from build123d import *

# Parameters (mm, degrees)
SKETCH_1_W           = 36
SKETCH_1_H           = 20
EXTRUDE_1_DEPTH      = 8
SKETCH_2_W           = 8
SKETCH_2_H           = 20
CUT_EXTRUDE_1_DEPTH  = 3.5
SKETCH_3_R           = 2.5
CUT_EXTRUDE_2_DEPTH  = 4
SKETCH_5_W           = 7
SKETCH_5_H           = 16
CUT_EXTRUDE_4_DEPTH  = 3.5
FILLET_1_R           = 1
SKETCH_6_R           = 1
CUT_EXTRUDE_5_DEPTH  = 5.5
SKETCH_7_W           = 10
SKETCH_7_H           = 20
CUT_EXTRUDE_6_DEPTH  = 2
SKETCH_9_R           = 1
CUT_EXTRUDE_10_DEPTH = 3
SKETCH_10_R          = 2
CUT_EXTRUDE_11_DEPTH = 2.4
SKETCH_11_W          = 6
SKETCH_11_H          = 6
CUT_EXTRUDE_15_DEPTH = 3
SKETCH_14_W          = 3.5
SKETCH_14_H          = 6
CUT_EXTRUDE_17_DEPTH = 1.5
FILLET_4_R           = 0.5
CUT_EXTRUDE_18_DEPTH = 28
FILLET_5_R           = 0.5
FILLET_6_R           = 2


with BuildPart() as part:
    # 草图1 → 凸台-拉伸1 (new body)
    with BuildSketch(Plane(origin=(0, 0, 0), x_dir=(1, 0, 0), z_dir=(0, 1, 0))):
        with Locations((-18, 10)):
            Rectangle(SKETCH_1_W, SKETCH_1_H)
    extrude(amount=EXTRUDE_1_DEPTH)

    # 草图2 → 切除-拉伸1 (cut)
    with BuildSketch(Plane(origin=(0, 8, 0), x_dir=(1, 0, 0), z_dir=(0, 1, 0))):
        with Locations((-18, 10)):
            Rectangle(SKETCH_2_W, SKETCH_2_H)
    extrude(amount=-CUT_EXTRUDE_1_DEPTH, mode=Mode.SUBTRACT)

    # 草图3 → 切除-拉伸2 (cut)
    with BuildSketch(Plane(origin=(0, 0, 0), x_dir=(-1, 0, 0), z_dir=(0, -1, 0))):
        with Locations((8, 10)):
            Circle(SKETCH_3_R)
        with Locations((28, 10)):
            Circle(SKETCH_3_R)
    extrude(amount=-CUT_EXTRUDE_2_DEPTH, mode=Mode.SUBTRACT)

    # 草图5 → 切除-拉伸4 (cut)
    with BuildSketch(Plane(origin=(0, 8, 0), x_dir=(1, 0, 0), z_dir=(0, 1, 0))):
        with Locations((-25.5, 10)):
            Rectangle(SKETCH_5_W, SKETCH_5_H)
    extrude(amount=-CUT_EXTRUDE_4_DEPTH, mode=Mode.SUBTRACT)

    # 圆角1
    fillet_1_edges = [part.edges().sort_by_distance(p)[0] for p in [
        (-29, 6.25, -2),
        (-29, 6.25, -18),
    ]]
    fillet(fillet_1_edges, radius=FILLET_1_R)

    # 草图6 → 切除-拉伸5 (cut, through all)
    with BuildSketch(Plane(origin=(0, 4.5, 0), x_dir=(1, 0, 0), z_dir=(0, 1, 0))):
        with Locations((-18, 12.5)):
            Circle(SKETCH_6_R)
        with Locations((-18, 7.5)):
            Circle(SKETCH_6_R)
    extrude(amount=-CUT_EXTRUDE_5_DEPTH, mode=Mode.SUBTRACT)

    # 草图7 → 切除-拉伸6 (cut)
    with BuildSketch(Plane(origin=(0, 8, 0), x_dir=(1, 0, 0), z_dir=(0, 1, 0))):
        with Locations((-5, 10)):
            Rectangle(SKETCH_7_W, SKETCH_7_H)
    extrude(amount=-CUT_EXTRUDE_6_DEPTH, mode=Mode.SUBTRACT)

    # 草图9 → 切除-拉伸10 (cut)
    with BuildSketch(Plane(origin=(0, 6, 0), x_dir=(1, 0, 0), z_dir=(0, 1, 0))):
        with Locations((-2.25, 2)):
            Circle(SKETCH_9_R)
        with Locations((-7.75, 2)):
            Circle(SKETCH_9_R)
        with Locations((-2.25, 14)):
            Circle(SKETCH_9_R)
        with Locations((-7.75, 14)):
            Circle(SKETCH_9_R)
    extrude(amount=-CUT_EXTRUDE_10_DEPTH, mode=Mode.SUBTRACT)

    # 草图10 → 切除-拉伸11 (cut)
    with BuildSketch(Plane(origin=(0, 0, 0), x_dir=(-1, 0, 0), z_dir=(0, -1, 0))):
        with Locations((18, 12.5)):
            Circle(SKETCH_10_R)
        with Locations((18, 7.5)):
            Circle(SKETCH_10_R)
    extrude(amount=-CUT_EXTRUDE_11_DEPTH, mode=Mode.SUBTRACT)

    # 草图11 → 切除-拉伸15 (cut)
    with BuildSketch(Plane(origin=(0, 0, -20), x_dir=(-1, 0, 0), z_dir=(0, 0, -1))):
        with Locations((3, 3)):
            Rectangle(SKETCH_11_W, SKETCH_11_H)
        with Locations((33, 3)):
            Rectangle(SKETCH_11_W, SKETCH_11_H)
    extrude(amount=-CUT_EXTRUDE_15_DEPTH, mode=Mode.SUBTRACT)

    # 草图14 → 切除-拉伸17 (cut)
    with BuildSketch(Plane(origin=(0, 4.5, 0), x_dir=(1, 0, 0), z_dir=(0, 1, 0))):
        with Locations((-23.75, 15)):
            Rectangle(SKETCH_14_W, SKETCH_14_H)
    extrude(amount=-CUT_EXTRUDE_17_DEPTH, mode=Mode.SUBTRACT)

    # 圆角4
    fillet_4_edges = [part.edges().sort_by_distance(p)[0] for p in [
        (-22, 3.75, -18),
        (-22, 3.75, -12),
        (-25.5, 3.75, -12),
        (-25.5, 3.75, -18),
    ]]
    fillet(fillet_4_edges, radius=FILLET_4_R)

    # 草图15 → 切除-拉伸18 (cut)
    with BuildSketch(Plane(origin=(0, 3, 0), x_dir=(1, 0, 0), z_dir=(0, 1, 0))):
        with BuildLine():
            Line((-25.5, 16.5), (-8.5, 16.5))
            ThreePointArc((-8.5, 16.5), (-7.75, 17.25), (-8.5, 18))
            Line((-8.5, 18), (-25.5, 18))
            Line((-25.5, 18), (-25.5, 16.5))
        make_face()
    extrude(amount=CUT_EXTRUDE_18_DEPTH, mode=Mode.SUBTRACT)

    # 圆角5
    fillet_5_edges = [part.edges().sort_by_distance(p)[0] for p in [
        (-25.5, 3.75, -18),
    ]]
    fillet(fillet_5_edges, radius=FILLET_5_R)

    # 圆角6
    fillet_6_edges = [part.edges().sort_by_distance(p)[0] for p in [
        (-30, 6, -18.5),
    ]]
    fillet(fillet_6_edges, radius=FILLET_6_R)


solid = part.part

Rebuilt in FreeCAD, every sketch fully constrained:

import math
import FreeCAD as App
import Part
import Sketcher
from FreeCAD import Vector


def edges_at(feature, points):
    """Names of the edges that pass closest to the given points."""
    edges = feature.Shape.Edges
    near = lambda p: min(range(len(edges)), key=lambda i: edges[i].distToShape(Part.Vertex(*p))[0])
    return sorted({f"Edge{near(p) + 1}" for p in points})


def add_polygon(sketch, points):
    """Adds a closed chain of lines whose ends are joined by coincident constraints."""
    first, n = sketch.GeometryCount, len(points)
    for a, b in zip(points, points[1:] + points[:1]):
        sketch.addGeometry(Part.LineSegment(App.Vector(*a, 0), App.Vector(*b, 0)), False)
    for i in range(n):
        sketch.addConstraint(Sketcher.Constraint("Coincident", first + i, 2, first + (i + 1) % n, 1))

doc = App.newDocument("Part")
body = doc.addObject("PartDesign::Body", "Body")

sketch1 = doc.addObject("Sketcher::SketchObject", "Sketch")
body.addObject(sketch1)
sketch1.AttachmentSupport = (doc.XZ_Plane, [""])
sketch1.MapMode = "FlatFace"
add_polygon(sketch1, [(-36, -20), (-36, 0), (0, 0), (0, -20)])
sketch1.addConstraint(Sketcher.Constraint("Vertical", 0))
sketch1.addConstraint(Sketcher.Constraint("Horizontal", 1))
sketch1.addConstraint(Sketcher.Constraint("Vertical", 2))
sketch1.addConstraint(Sketcher.Constraint("Horizontal", 3))
sketch1.addConstraint(Sketcher.Constraint("Coincident", 1, 2, -1, 1))
sketch1.addConstraint(Sketcher.Constraint("DistanceX", 1, 1, 1, 2, 36.0))
sketch1.addConstraint(Sketcher.Constraint("DistanceY", 0, 1, 0, 2, 20.0))
pad1 = doc.addObject("PartDesign::Pad", "Pad")
body.addObject(pad1)
pad1.Profile = sketch1
pad1.Length = 8
pad1.Reversed = True

sketch2 = doc.addObject("Sketcher::SketchObject", "Sketch001")
body.addObject(sketch2)
sketch2.AttachmentSupport = (doc.XZ_Plane, [""])
sketch2.MapMode = "FlatFace"
sketch2.AttachmentOffset = App.Placement(Vector(0, 0, -8), App.Rotation())
add_polygon(sketch2, [(-22, -20), (-22, 0), (-14, 0), (-14, -20)])
sketch2.addConstraint(Sketcher.Constraint("Vertical", 0))
sketch2.addConstraint(Sketcher.Constraint("Horizontal", 1))
sketch2.addConstraint(Sketcher.Constraint("Vertical", 2))
sketch2.addConstraint(Sketcher.Constraint("Horizontal", 3))
sketch2.addConstraint(Sketcher.Constraint("PointOnObject", 0, 2, -1))
sketch2.addConstraint(Sketcher.Constraint("DistanceX", 1, 1, 1, 2, 8.0))
sketch2.addConstraint(Sketcher.Constraint("DistanceY", 0, 1, 0, 2, 20.0))
sketch2.addConstraint(Sketcher.Constraint("DistanceX", 0, 2, -1, 1, 22.0))
pocket1 = doc.addObject("PartDesign::Pocket", "Pocket")
body.addObject(pocket1)
pocket1.Profile = sketch2
pocket1.Length = 3.5
pocket1.Reversed = True

sketch3 = doc.addObject("Sketcher::SketchObject", "Sketch002")
body.addObject(sketch3)
sketch3.AttachmentSupport = (doc.XZ_Plane, [""])
sketch3.MapMode = "FlatFace"
sketch3.addGeometry(Part.Circle(Vector(-8, -10, 0), Vector(0, 0, 1), 2.5), False)
sketch3.addGeometry(Part.Circle(Vector(-28, -10, 0), Vector(0, 0, 1), 2.5), False)
sketch3.addConstraint(Sketcher.Constraint("Equal", 0, 1))
sketch3.addConstraint(Sketcher.Constraint("Horizontal", 0, 3, 1, 3))
sketch3.addConstraint(Sketcher.Constraint("Diameter", 0, 5.0))
sketch3.addConstraint(Sketcher.Constraint("DistanceX", 0, 3, -1, 1, 8.0))
sketch3.addConstraint(Sketcher.Constraint("DistanceY", 0, 3, -1, 1, 10.0))
sketch3.addConstraint(Sketcher.Constraint("DistanceX", 1, 3, -1, 1, 28.0))
pocket2 = doc.addObject("PartDesign::Pocket", "Pocket001")
body.addObject(pocket2)
pocket2.Profile = sketch3
pocket2.Length = 4

sketch4 = doc.addObject("Sketcher::SketchObject", "Sketch003")
body.addObject(sketch4)
sketch4.AttachmentSupport = (doc.XZ_Plane, [""])
sketch4.MapMode = "FlatFace"
sketch4.AttachmentOffset = App.Placement(Vector(0, 0, -8), App.Rotation())
add_polygon(sketch4, [(-29, -18), (-29, -2), (-22, -2), (-22, -18)])
sketch4.addConstraint(Sketcher.Constraint("Vertical", 0))
sketch4.addConstraint(Sketcher.Constraint("Horizontal", 1))
sketch4.addConstraint(Sketcher.Constraint("Vertical", 2))
sketch4.addConstraint(Sketcher.Constraint("Horizontal", 3))
sketch4.addConstraint(Sketcher.Constraint("DistanceX", 1, 1, 1, 2, 7.0))
sketch4.addConstraint(Sketcher.Constraint("DistanceY", 0, 1, 0, 2, 16.0))
sketch4.addConstraint(Sketcher.Constraint("DistanceX", 0, 2, -1, 1, 29.0))
sketch4.addConstraint(Sketcher.Constraint("DistanceY", 0, 2, -1, 1, 2.0))
pocket3 = doc.addObject("PartDesign::Pocket", "Pocket002")
body.addObject(pocket3)
pocket3.Profile = sketch4
pocket3.Length = 3.5
pocket3.Reversed = True
doc.recompute()

fillet = doc.addObject("PartDesign::Fillet", "Fillet")
body.addObject(fillet)
fillet.Base = (pocket3, edges_at(pocket3, [(-29, 6.25, -2), (-29, 6.25, -18)]))
fillet.Radius = 1

sketch5 = doc.addObject("Sketcher::SketchObject", "Sketch004")
body.addObject(sketch5)
sketch5.AttachmentSupport = (doc.XZ_Plane, [""])
sketch5.MapMode = "FlatFace"
sketch5.AttachmentOffset = App.Placement(Vector(0, 0, -4.5), App.Rotation())
sketch5.addGeometry(Part.Circle(Vector(-18, -12.5, 0), Vector(0, 0, 1), 1), False)
sketch5.addGeometry(Part.Circle(Vector(-18, -7.5, 0), Vector(0, 0, 1), 1), False)
sketch5.addConstraint(Sketcher.Constraint("Equal", 0, 1))
sketch5.addConstraint(Sketcher.Constraint("Vertical", 0, 3, 1, 3))
sketch5.addConstraint(Sketcher.Constraint("Diameter", 0, 2.0))
sketch5.addConstraint(Sketcher.Constraint("DistanceX", 0, 3, -1, 1, 18.0))
sketch5.addConstraint(Sketcher.Constraint("DistanceY", 0, 3, 1, 3, 5.0))
sketch5.addConstraint(Sketcher.Constraint("DistanceY", 0, 3, -1, 1, 12.5))
pocket4 = doc.addObject("PartDesign::Pocket", "Pocket003")
body.addObject(pocket4)
pocket4.Profile = sketch5
pocket4.Type = "ThroughAll"
pocket4.Reversed = True

sketch6 = doc.addObject("Sketcher::SketchObject", "Sketch005")
body.addObject(sketch6)
sketch6.AttachmentSupport = (doc.XZ_Plane, [""])
sketch6.MapMode = "FlatFace"
sketch6.AttachmentOffset = App.Placement(Vector(0, 0, -8), App.Rotation())
add_polygon(sketch6, [(-10, -20), (-10, 0), (0, 0), (0, -20)])
sketch6.addConstraint(Sketcher.Constraint("Vertical", 0))
sketch6.addConstraint(Sketcher.Constraint("Horizontal", 1))
sketch6.addConstraint(Sketcher.Constraint("Vertical", 2))
sketch6.addConstraint(Sketcher.Constraint("Horizontal", 3))
sketch6.addConstraint(Sketcher.Constraint("Coincident", 1, 2, -1, 1))
sketch6.addConstraint(Sketcher.Constraint("DistanceX", 1, 1, 1, 2, 10.0))
sketch6.addConstraint(Sketcher.Constraint("DistanceY", 0, 1, 0, 2, 20.0))
pocket5 = doc.addObject("PartDesign::Pocket", "Pocket004")
body.addObject(pocket5)
pocket5.Profile = sketch6
pocket5.Length = 2
pocket5.Reversed = True

sketch7 = doc.addObject("Sketcher::SketchObject", "Sketch006")
body.addObject(sketch7)
sketch7.AttachmentSupport = (doc.XZ_Plane, [""])
sketch7.MapMode = "FlatFace"
sketch7.AttachmentOffset = App.Placement(Vector(0, 0, -6), App.Rotation())
sketch7.addGeometry(Part.Circle(Vector(-2.2, -2, 0), Vector(0, 0, 1), 1), False)
sketch7.addGeometry(Part.Circle(Vector(-7.8, -2, 0), Vector(0, 0, 1), 1), False)
sketch7.addGeometry(Part.Circle(Vector(-2.2, -14, 0), Vector(0, 0, 1), 1), False)
sketch7.addGeometry(Part.Circle(Vector(-7.8, -14, 0), Vector(0, 0, 1), 1), False)
sketch7.addConstraint(Sketcher.Constraint("Equal", 0, 1))
sketch7.addConstraint(Sketcher.Constraint("Equal", 1, 2))
sketch7.addConstraint(Sketcher.Constraint("Equal", 2, 3))
sketch7.addConstraint(Sketcher.Constraint("Horizontal", 0, 3, 1, 3))
sketch7.addConstraint(Sketcher.Constraint("Horizontal", 2, 3, 3, 3))
sketch7.addConstraint(Sketcher.Constraint("Vertical", 0, 3, 2, 3))
sketch7.addConstraint(Sketcher.Constraint("Vertical", 1, 3, 3, 3))
sketch7.addConstraint(Sketcher.Constraint("Diameter", 0, 2.0))
sketch7.addConstraint(Sketcher.Constraint("DistanceY", 0, 3, -1, 1, 2.0))
sketch7.addConstraint(Sketcher.Constraint("DistanceY", 2, 3, -1, 1, 14.0))
sketch7.addConstraint(Sketcher.Constraint("DistanceX", 1, 3, 0, 3, 5.5))
sketch7.addConstraint(Sketcher.Constraint("DistanceX", 0, 3, -1, 1, 2.25))
pocket6 = doc.addObject("PartDesign::Pocket", "Pocket005")
body.addObject(pocket6)
pocket6.Profile = sketch7
pocket6.Length = 3
pocket6.Reversed = True

sketch8 = doc.addObject("Sketcher::SketchObject", "Sketch007")
body.addObject(sketch8)
sketch8.AttachmentSupport = (doc.XZ_Plane, [""])
sketch8.MapMode = "FlatFace"
sketch8.addGeometry(Part.Circle(Vector(-18, -12.5, 0), Vector(0, 0, 1), 2), False)
sketch8.addGeometry(Part.Circle(Vector(-18, -7.5, 0), Vector(0, 0, 1), 2), False)
sketch8.addConstraint(Sketcher.Constraint("Equal", 0, 1))
sketch8.addConstraint(Sketcher.Constraint("Vertical", 0, 3, 1, 3))
sketch8.addConstraint(Sketcher.Constraint("Diameter", 0, 4.0))
sketch8.addConstraint(Sketcher.Constraint("DistanceX", 0, 3, -1, 1, 18.0))
sketch8.addConstraint(Sketcher.Constraint("DistanceY", 0, 3, 1, 3, 5.0))
sketch8.addConstraint(Sketcher.Constraint("DistanceY", 0, 3, -1, 1, 12.5))
pocket7 = doc.addObject("PartDesign::Pocket", "Pocket006")
body.addObject(pocket7)
pocket7.Profile = sketch8
pocket7.Length = 2.4

sketch9 = doc.addObject("Sketcher::SketchObject", "Sketch008")
body.addObject(sketch9)
sketch9.AttachmentSupport = (doc.XY_Plane, [""])
sketch9.MapMode = "FlatFace"
sketch9.AttachmentOffset = App.Placement(Vector(0, 0, -20), App.Rotation())
add_polygon(sketch9, [(0, 6), (0, 0), (-6, 0), (-6, 6)])
add_polygon(sketch9, [(-30, 6), (-30, 0), (-36, 0), (-36, 6)])
sketch9.addConstraint(Sketcher.Constraint("Vertical", 0))
sketch9.addConstraint(Sketcher.Constraint("Horizontal", 1))
sketch9.addConstraint(Sketcher.Constraint("Vertical", 2))
sketch9.addConstraint(Sketcher.Constraint("Horizontal", 3))
sketch9.addConstraint(Sketcher.Constraint("Vertical", 4))
sketch9.addConstraint(Sketcher.Constraint("Horizontal", 5))
sketch9.addConstraint(Sketcher.Constraint("Vertical", 6))
sketch9.addConstraint(Sketcher.Constraint("Horizontal", 7))
sketch9.addConstraint(Sketcher.Constraint("Coincident", 0, 2, -1, 1))
sketch9.addConstraint(Sketcher.Constraint("PointOnObject", 4, 2, -1))
sketch9.addConstraint(Sketcher.Constraint("Horizontal", 3, 2, 6, 2))
sketch9.addConstraint(Sketcher.Constraint("Equal", 3, 5))
sketch9.addConstraint(Sketcher.Constraint("Equal", 7, 0))
sketch9.addConstraint(Sketcher.Constraint("DistanceX", 1, 2, 1, 1, 6.0))
sketch9.addConstraint(Sketcher.Constraint("DistanceX", 4, 2, -1, 1, 30.0))
pocket8 = doc.addObject("PartDesign::Pocket", "Pocket007")
body.addObject(pocket8)
pocket8.Profile = sketch9
pocket8.Length = 3
pocket8.Reversed = True

sketch10 = doc.addObject("Sketcher::SketchObject", "Sketch009")
body.addObject(sketch10)
sketch10.AttachmentSupport = (doc.XZ_Plane, [""])
sketch10.MapMode = "FlatFace"
sketch10.AttachmentOffset = App.Placement(Vector(0, 0, -4.5), App.Rotation())
add_polygon(sketch10, [(-25.5, -18), (-25.5, -12), (-22, -12), (-22, -18)])
sketch10.addConstraint(Sketcher.Constraint("Vertical", 0))
sketch10.addConstraint(Sketcher.Constraint("Horizontal", 1))
sketch10.addConstraint(Sketcher.Constraint("Vertical", 2))
sketch10.addConstraint(Sketcher.Constraint("Horizontal", 3))
sketch10.addConstraint(Sketcher.Constraint("DistanceY", 0, 1, 0, 2, 6.0))
sketch10.addConstraint(Sketcher.Constraint("DistanceX", 1, 1, 1, 2, 3.5))
sketch10.addConstraint(Sketcher.Constraint("DistanceY", 0, 2, -1, 1, 12.0))
sketch10.addConstraint(Sketcher.Constraint("DistanceX", 1, 2, -1, 1, 22.0))
pocket9 = doc.addObject("PartDesign::Pocket", "Pocket008")
body.addObject(pocket9)
pocket9.Profile = sketch10
pocket9.Length = 1.5
pocket9.Reversed = True
doc.recompute()

fillet2 = doc.addObject("PartDesign::Fillet", "Fillet001")
body.addObject(fillet2)
fillet2.Base = (pocket9, edges_at(pocket9, [
    (-22, 3.75, -18),
    (-22, 3.75, -12),
    (-25.5, 3.75, -12),
    (-25.5, 3.75, -18),
]))
fillet2.Radius = 0.5

sketch11 = doc.addObject("Sketcher::SketchObject", "Sketch010")
body.addObject(sketch11)
sketch11.AttachmentSupport = (doc.XZ_Plane, [""])
sketch11.MapMode = "FlatFace"
sketch11.AttachmentOffset = App.Placement(Vector(0, 0, -3), App.Rotation())
sketch11.addGeometry(Part.LineSegment(Vector(-25.5, -16.5, 0), Vector(-8.5, -16.5, 0)), False)
sketch11.addGeometry(Part.ArcOfCircle(Part.Circle(Vector(-8.5, -17.2, 0), Vector(0, 0, 1), 0.8), math.radians(-90), math.radians(90)), False)
sketch11.addGeometry(Part.LineSegment(Vector(-8.5, -18, 0), Vector(-25.5, -18, 0)), False)
sketch11.addGeometry(Part.LineSegment(Vector(-25.5, -18, 0), Vector(-25.5, -16.5, 0)), False)
sketch11.addConstraint(Sketcher.Constraint("Tangent", 0, 2, 1, 2))
sketch11.addConstraint(Sketcher.Constraint("Tangent", 1, 1, 2, 1))
sketch11.addConstraint(Sketcher.Constraint("Coincident", 2, 2, 3, 1))
sketch11.addConstraint(Sketcher.Constraint("Coincident", 3, 2, 0, 1))
sketch11.addConstraint(Sketcher.Constraint("Horizontal", 0))
sketch11.addConstraint(Sketcher.Constraint("Horizontal", 2))
sketch11.addConstraint(Sketcher.Constraint("Vertical", 3))
sketch11.addConstraint(Sketcher.Constraint("DistanceX", 0, 1, 0, 2, 17.0))
sketch11.addConstraint(Sketcher.Constraint("Radius", 1, 0.75))
sketch11.addConstraint(Sketcher.Constraint("DistanceY", 1, 1, -1, 1, 18.0))
sketch11.addConstraint(Sketcher.Constraint("DistanceX", 1, 3, -1, 1, 8.5))
pocket10 = doc.addObject("PartDesign::Pocket", "Pocket009")
body.addObject(pocket10)
pocket10.Profile = sketch11
pocket10.Length = 28
doc.recompute()

fillet3 = doc.addObject("PartDesign::Fillet", "Fillet002")
body.addObject(fillet3)
fillet3.Base = (pocket10, edges_at(pocket10, [(-25.5, 3.75, -18)]))
fillet3.Radius = 0.5
doc.recompute()

fillet4 = doc.addObject("PartDesign::Fillet", "Fillet003")
body.addObject(fillet4)
fillet4.Base = (fillet3, edges_at(fillet3, [(-30, 6, -18.5)]))
fillet4.Radius = 2

doc.recompute()
